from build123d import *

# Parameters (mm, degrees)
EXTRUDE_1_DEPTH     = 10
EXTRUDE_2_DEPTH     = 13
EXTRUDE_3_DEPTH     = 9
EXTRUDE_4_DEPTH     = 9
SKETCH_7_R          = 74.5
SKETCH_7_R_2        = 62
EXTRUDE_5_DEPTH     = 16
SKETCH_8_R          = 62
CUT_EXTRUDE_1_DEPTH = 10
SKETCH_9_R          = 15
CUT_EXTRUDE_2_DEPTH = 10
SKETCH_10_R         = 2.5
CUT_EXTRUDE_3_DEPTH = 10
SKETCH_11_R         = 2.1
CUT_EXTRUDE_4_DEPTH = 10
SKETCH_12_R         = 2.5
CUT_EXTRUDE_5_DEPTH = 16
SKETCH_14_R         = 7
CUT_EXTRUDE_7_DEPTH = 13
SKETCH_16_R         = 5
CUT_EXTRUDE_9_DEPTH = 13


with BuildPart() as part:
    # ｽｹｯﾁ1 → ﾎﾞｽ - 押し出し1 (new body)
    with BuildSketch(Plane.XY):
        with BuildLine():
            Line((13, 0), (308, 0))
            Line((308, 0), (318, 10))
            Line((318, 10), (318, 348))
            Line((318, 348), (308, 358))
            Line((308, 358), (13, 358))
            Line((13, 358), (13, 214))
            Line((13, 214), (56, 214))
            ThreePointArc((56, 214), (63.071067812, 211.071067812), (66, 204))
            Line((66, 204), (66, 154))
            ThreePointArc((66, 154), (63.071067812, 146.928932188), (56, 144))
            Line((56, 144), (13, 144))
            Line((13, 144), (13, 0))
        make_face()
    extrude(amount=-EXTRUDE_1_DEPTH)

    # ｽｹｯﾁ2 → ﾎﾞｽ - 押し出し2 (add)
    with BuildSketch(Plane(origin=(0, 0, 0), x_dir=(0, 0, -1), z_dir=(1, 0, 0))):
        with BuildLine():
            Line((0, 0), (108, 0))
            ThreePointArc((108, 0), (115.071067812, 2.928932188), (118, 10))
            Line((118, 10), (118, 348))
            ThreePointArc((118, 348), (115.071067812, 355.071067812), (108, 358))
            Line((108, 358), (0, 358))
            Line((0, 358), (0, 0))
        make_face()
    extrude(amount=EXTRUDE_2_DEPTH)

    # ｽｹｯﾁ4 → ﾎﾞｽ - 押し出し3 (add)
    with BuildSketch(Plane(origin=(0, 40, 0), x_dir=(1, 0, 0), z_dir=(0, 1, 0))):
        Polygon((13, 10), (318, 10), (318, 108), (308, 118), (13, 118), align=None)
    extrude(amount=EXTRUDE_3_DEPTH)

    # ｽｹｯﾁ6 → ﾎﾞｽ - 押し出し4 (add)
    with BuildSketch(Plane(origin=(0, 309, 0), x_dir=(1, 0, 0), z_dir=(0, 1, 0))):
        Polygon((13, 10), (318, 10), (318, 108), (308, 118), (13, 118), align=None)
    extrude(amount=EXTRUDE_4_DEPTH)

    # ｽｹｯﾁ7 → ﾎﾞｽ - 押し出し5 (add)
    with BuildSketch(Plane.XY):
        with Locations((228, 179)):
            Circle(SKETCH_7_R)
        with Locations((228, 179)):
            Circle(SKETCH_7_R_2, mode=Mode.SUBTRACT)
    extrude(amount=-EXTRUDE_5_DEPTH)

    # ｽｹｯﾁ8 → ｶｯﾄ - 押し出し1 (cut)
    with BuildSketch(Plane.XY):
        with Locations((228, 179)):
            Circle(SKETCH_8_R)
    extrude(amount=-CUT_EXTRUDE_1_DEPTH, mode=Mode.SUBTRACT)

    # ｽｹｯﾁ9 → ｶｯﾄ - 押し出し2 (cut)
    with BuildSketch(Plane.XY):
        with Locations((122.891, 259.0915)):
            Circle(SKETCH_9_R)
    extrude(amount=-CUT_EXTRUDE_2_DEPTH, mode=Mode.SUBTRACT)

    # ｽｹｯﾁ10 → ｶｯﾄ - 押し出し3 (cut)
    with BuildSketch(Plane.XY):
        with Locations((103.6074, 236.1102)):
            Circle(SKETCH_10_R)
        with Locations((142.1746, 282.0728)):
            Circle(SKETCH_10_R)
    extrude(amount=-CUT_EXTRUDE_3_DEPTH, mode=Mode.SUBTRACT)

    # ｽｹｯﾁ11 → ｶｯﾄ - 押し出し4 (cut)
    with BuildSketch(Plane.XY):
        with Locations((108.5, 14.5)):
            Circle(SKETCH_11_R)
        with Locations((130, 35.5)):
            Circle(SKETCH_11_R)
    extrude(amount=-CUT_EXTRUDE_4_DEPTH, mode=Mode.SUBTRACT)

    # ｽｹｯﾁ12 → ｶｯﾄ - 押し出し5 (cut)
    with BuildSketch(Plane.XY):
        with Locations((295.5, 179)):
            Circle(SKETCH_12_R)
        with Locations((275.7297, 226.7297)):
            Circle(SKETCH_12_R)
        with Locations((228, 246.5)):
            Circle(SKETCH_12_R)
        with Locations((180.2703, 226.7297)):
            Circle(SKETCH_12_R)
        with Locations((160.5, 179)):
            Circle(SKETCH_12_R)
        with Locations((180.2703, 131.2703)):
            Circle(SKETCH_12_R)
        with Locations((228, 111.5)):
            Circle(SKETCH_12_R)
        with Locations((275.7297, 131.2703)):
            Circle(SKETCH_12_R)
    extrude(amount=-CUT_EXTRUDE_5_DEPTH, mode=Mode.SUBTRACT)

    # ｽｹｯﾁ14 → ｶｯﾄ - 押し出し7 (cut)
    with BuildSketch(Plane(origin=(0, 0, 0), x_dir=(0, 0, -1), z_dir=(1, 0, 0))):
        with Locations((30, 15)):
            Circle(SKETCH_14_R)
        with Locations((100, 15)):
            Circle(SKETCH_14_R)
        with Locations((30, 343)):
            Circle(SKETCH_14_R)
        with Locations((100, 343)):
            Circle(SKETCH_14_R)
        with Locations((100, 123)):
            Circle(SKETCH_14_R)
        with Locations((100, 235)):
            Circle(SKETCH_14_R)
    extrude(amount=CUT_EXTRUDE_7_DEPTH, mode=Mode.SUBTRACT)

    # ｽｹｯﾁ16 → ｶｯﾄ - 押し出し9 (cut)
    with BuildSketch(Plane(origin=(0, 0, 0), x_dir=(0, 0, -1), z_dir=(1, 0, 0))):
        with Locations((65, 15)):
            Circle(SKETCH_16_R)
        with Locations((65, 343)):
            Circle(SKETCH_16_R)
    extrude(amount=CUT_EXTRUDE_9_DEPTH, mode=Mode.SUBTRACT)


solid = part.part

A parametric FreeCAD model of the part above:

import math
import FreeCAD as App
import Part
import Sketcher

V = App.Vector
Q = App.Units.Quantity

doc = App.newDocument("Part")
params = doc.addObject("Spreadsheet::Sheet", "Params")
for row, (alias, value) in enumerate([
    ("sketch1_radius", "10 mm"),
    ("sketch1_width", "295 mm"),
    ("sketch1_width2", "43 mm"),
    ("sketch1_height", "338 mm"),
    ("sketch1_height2", "144 mm"),
    ("pad1_length", "10 mm"),
    ("sketch2_radius", "10 mm"),
    ("sketch2_width", "338 mm"),
    ("sketch2_height", "108 mm"),
    ("pad2_length", "13 mm"),
    ("sketch3_width", "305 mm"),
    ("sketch3_width2", "295 mm"),
    ("sketch3_height", "98 mm"),
    ("sketch3_height2", "108 mm"),
    ("pad3_length", "9 mm"),
    ("sketch4_width", "305 mm"),
    ("sketch4_width2", "295 mm"),
    ("sketch4_height", "98 mm"),
    ("sketch4_height2", "108 mm"),
    ("pad4_length", "9 mm"),
    ("sketch5_diameter", "149 mm"),
    ("sketch5_diameter2", "124 mm"),
    ("pad5_length", "16 mm"),
    ("sketch6_diameter", "124 mm"),
    ("pocket1_length", "10 mm"),
    ("sketch7_diameter", "30 mm"),
    ("pocket2_length", "10 mm"),
    ("sketch8_diameter", "5 mm"),
    ("pocket3_length", "10 mm"),
    ("sketch9_diameter", "4.2 mm"),
    ("pocket4_length", "10 mm"),
    ("sketch10_diameter", "5 mm"),
    ("pocket5_length", "16 mm"),
    ("sketch11_diameter", "14 mm"),
    ("pocket6_length", "13 mm"),
    ("sketch12_diameter", "10 mm"),
    ("pocket7_length", "13 mm"),
], start=1):
    params.set(f"A{row}", alias)
    params.set(f"B{row}", "=" + value)
    params.setAlias(f"B{row}", alias)

body = doc.addObject("PartDesign::Body", "Body")

# Sketch on XY plane
sketch1 = doc.addObject("Sketcher::SketchObject", "Sketch")
body.addObject(sketch1)
sketch1.AttachmentSupport = (doc.XY_Plane, [""])
sketch1.MapMode = "FlatFace"
sketch1.addGeometry([
    Part.LineSegment(V(13, 0, 0), V(308, 0, 0)),  # 0
    Part.LineSegment(V(308, 0, 0), V(318, 10, 0)),  # 1
    Part.LineSegment(V(318, 10, 0), V(318, 348, 0)),  # 2
    Part.LineSegment(V(318, 348, 0), V(308, 358, 0)),  # 3
    Part.LineSegment(V(308, 358, 0), V(13, 358, 0)),  # 4
    Part.LineSegment(V(13, 358, 0), V(13, 214, 0)),  # 5
    Part.LineSegment(V(13, 214, 0), V(56, 214, 0)),  # 6
    Part.ArcOfCircle(Part.Circle(V(56, 204, 0), V(0, 0, 1), 10), math.radians(0), math.radians(90)),  # 7
    Part.LineSegment(V(66, 204, 0), V(66, 154, 0)),  # 8
    Part.ArcOfCircle(Part.Circle(V(56, 154, 0), V(0, 0, 1), 10), math.radians(-90), math.radians(0)),  # 9
    Part.LineSegment(V(56, 144, 0), V(13, 144, 0)),  # 10
    Part.LineSegment(V(13, 144, 0), V(13, 0, 0)),  # 11
], False)
sketch1.addConstraint([
    Sketcher.Constraint("Coincident", 0, 2, 1, 1),
    Sketcher.Constraint("Coincident", 1, 2, 2, 1),
    Sketcher.Constraint("Coincident", 2, 2, 3, 1),
    Sketcher.Constraint("Coincident", 3, 2, 4, 1),
    Sketcher.Constraint("Coincident", 4, 2, 5, 1),
    Sketcher.Constraint("Coincident", 5, 2, 6, 1),
    Sketcher.Constraint("Tangent", 6, 2, 7, 2),
    Sketcher.Constraint("Tangent", 7, 1, 8, 1),
    Sketcher.Constraint("Tangent", 8, 2, 9, 2),
    Sketcher.Constraint("Tangent", 9, 1, 10, 1),
    Sketcher.Constraint("Coincident", 10, 2, 11, 1),
    Sketcher.Constraint("Coincident", 11, 2, 0, 1),
    Sketcher.Constraint("Horizontal", 0),
    Sketcher.Constraint("Vertical", 2),
    Sketcher.Constraint("Horizontal", 4),
    Sketcher.Constraint("Vertical", 5),
    Sketcher.Constraint("Horizontal", 6),
    Sketcher.Constraint("Vertical", 8),
    Sketcher.Constraint("Horizontal", 10),
    Sketcher.Constraint("Vertical", 11),
    Sketcher.Constraint("Equal", 7, 9),
    Sketcher.Constraint("PointOnObject", 0, 2, -1),
    Sketcher.Constraint("Perpendicular", 1, 3),
    Sketcher.Constraint("Vertical", 0, 2, 3, 2),
    Sketcher.Constraint("Vertical", 5, 2, 10, 2),
    Sketcher.Constraint("Equal", 5, 11),
    Sketcher.Constraint("Equal", 1, 3),
    Sketcher.Constraint("Radius", 7, Q("10 mm")),
    Sketcher.Constraint("DistanceX", 0, 1, 0, 2, Q("295 mm")),
    Sketcher.Constraint("DistanceX", 6, 1, 6, 2, Q("43 mm")),
    Sketcher.Constraint("DistanceY", 2, 1, 2, 2, Q("338 mm")),
    Sketcher.Constraint("DistanceY", 5, 2, 5, 1, Q("144 mm")),
    Sketcher.Constraint("DistanceY", 8, 2, 8, 1, Q("50 mm")),
    Sketcher.Constraint("DistanceX", -1, 1, 7, 3, Q("56 mm")),
])
sketch1.setExpression("Constraints[27]", "Params.sketch1_radius")
sketch1.setExpression("Constraints[28]", "Params.sketch1_width")
sketch1.setExpression("Constraints[29]", "Params.sketch1_width2")
sketch1.setExpression("Constraints[30]", "Params.sketch1_height")
sketch1.setExpression("Constraints[31]", "Params.sketch1_height2")
pad1 = doc.addObject("PartDesign::Pad", "Pad")
body.addObject(pad1)
pad1.Profile = sketch1
pad1.setExpression("Length", "Params.pad1_length")
pad1.Reversed = True

# Sketch on YZ plane
sketch2 = doc.addObject("Sketcher::SketchObject", "Sketch001")
body.addObject(sketch2)
sketch2.AttachmentSupport = (doc.YZ_Plane, [""])
sketch2.MapMode = "FlatFace"
sketch2.addGeometry([
    Part.LineSegment(V(0, 0, 0), V(0, -108, 0)),  # 0
    Part.ArcOfCircle(Part.Circle(V(10, -108, 0), V(0, 0, 1), 10), math.radians(180), math.radians(270)),  # 1
    Part.LineSegment(V(10, -118, 0), V(348, -118, 0)),  # 2
    Part.ArcOfCircle(Part.Circle(V(348, -108, 0), V(0, 0, 1), 10), math.radians(-90), math.radians(0)),  # 3
    Part.LineSegment(V(358, -108, 0), V(358, 0, 0)),  # 4
    Part.LineSegment(V(358, 0, 0), V(0, 0, 0)),  # 5
], False)
sketch2.addConstraint([
    Sketcher.Constraint("Tangent", 0, 2, 1, 1),
    Sketcher.Constraint("Tangent", 1, 2, 2, 1),
    Sketcher.Constraint("Tangent", 2, 2, 3, 1),
    Sketcher.Constraint("Tangent", 3, 2, 4, 1),
    Sketcher.Constraint("Coincident", 4, 2, 5, 1),
    Sketcher.Constraint("Coincident", 5, 2, 0, 1),
    Sketcher.Constraint("Vertical", 0),
    Sketcher.Constraint("Horizontal", 2),
    Sketcher.Constraint("Vertical", 4),
    Sketcher.Constraint("Horizontal", 5),
    Sketcher.Constraint("Coincident", 5, 2, -1, 1),
    Sketcher.Constraint("Equal", 1, 3),
    Sketcher.Constraint("Radius", 1, Q("10 mm")),
    Sketcher.Constraint("DistanceX", 2, 1, 2, 2, Q("338 mm")),
    Sketcher.Constraint("DistanceY", 0, 2, 0, 1, Q("108 mm")),
])
sketch2.setExpression("Constraints[12]", "Params.sketch2_radius")
sketch2.setExpression("Constraints[13]", "Params.sketch2_width")
sketch2.setExpression("Constraints[14]", "Params.sketch2_height")
pad2 = doc.addObject("PartDesign::Pad", "Pad001")
body.addObject(pad2)
pad2.Profile = sketch2
pad2.setExpression("Length", "Params.pad2_length")

# Sketch on XZ plane
sketch3 = doc.addObject("Sketcher::SketchObject", "Sketch002")
body.addObject(sketch3)
sketch3.AttachmentSupport = (doc.XZ_Plane, [""])
sketch3.MapMode = "FlatFace"
sketch3.AttachmentOffset = App.Placement(V(0, 0, -40), App.Rotation())
sketch3.addGeometry([
    Part.LineSegment(V(13, -10, 0), V(318, -10, 0)),  # 0
    Part.LineSegment(V(318, -10, 0), V(318, -108, 0)),  # 1
    Part.LineSegment(V(318, -108, 0), V(308, -118, 0)),  # 2
    Part.LineSegment(V(308, -118, 0), V(13, -118, 0)),  # 3
    Part.LineSegment(V(13, -118, 0), V(13, -10, 0)),  # 4
], False)
sketch3.addConstraint([
    Sketcher.Constraint("Coincident", 0, 2, 1, 1),
    Sketcher.Constraint("Coincident", 1, 2, 2, 1),
    Sketcher.Constraint("Coincident", 2, 2, 3, 1),
    Sketcher.Constraint("Coincident", 3, 2, 4, 1),
    Sketcher.Constraint("Coincident", 4, 2, 0, 1),
    Sketcher.Constraint("Horizontal", 0),
    Sketcher.Constraint("Vertical", 1),
    Sketcher.Constraint("Horizontal", 3),
    Sketcher.Constraint("Vertical", 4),
    Sketcher.Constraint("DistanceX", 0, 1, 0, 2, Q("305 mm")),
    Sketcher.Constraint("DistanceX", 3, 2, 3, 1, Q("295 mm")),
    Sketcher.Constraint("DistanceY", 1, 2, 1, 1, Q("98 mm")),
    Sketcher.Constraint("DistanceY", 4, 1, 4, 2, Q("108 mm")),
    Sketcher.Constraint("DistanceX", -1, 1, 0, 2, Q("318 mm")),
    Sketcher.Constraint("DistanceY", 0, 2, -1, 1, Q("10 mm")),
])
sketch3.setExpression("Constraints[9]", "Params.sketch3_width")
sketch3.setExpression("Constraints[10]", "Params.sketch3_width2")
sketch3.setExpression("Constraints[11]", "Params.sketch3_height")
sketch3.setExpression("Constraints[12]", "Params.sketch3_height2")
pad3 = doc.addObject("PartDesign::Pad", "Pad002")
body.addObject(pad3)
pad3.Profile = sketch3
pad3.setExpression("Length", "Params.pad3_length")
pad3.Reversed = True

# Sketch on XZ plane
sketch4 = doc.addObject("Sketcher::SketchObject", "Sketch003")
body.addObject(sketch4)
sketch4.AttachmentSupport = (doc.XZ_Plane, [""])
sketch4.MapMode = "FlatFace"
sketch4.AttachmentOffset = App.Placement(V(0, 0, -309), App.Rotation())
sketch4.addGeometry([
    Part.LineSegment(V(13, -10, 0), V(318, -10, 0)),  # 0
    Part.LineSegment(V(318, -10, 0), V(318, -108, 0)),  # 1
    Part.LineSegment(V(318, -108, 0), V(308, -118, 0)),  # 2
    Part.LineSegment(V(308, -118, 0), V(13, -118, 0)),  # 3
    Part.LineSegment(V(13, -118, 0), V(13, -10, 0)),  # 4
], False)
sketch4.addConstraint([
    Sketcher.Constraint("Coincident", 0, 2, 1, 1),
    Sketcher.Constraint("Coincident", 1, 2, 2, 1),
    Sketcher.Constraint("Coincident", 2, 2, 3, 1),
    Sketcher.Constraint("Coincident", 3, 2, 4, 1),
    Sketcher.Constraint("Coincident", 4, 2, 0, 1),
    Sketcher.Constraint("Horizontal", 0),
    Sketcher.Constraint("Vertical", 1),
    Sketcher.Constraint("Horizontal", 3),
    Sketcher.Constraint("Vertical", 4),
    Sketcher.Constraint("DistanceX", 0, 1, 0, 2, Q("305 mm")),
    Sketcher.Constraint("DistanceX", 3, 2, 3, 1, Q("295 mm")),
    Sketcher.Constraint("DistanceY", 1, 2, 1, 1, Q("98 mm")),
    Sketcher.Constraint("DistanceY", 4, 1, 4, 2, Q("108 mm")),
    Sketcher.Constraint("DistanceX", -1, 1, 0, 2, Q("318 mm")),
    Sketcher.Constraint("DistanceY", 0, 2, -1, 1, Q("10 mm")),
])
sketch4.setExpression("Constraints[9]", "Params.sketch4_width")
sketch4.setExpression("Constraints[10]", "Params.sketch4_width2")
sketch4.setExpression("Constraints[11]", "Params.sketch4_height")
sketch4.setExpression("Constraints[12]", "Params.sketch4_height2")
pad4 = doc.addObject("PartDesign::Pad", "Pad003")
body.addObject(pad4)
pad4.Profile = sketch4
pad4.setExpression("Length", "Params.pad4_length")
pad4.Reversed = True

# Sketch on XY plane
sketch5 = doc.addObject("Sketcher::SketchObject", "Sketch004")
body.addObject(sketch5)
sketch5.AttachmentSupport = (doc.XY_Plane, [""])
sketch5.MapMode = "FlatFace"
sketch5.addGeometry([
    Part.Circle(V(228, 179, 0), V(0, 0, 1), 74),
    Part.Circle(V(228, 179, 0), V(0, 0, 1), 62),
], False)
sketch5.addConstraint([
    Sketcher.Constraint("Coincident", 1, 3, 0, 3),
    Sketcher.Constraint("Diameter", 0, Q("149 mm")),
    Sketcher.Constraint("Diameter", 1, Q("124 mm")),
    Sketcher.Constraint("DistanceX", -1, 1, 0, 3, Q("228 mm")),
    Sketcher.Constraint("DistanceY", -1, 1, 0, 3, Q("179 mm")),
])
sketch5.setExpression("Constraints[1]", "Params.sketch5_diameter")
sketch5.setExpression("Constraints[2]", "Params.sketch5_diameter2")
pad5 = doc.addObject("PartDesign::Pad", "Pad004")
body.addObject(pad5)
pad5.Profile = sketch5
pad5.setExpression("Length", "Params.pad5_length")
pad5.Reversed = True

# Sketch on XY plane
sketch6 = doc.addObject("Sketcher::SketchObject", "Sketch005")
body.addObject(sketch6)
sketch6.AttachmentSupport = (doc.XY_Plane, [""])
sketch6.MapMode = "FlatFace"
sketch6.addGeometry(Part.Circle(V(228, 179, 0), V(0, 0, 1), 62), False)
sketch6.addConstraint([
    Sketcher.Constraint("Diameter", 0, Q("124 mm")),
    Sketcher.Constraint("DistanceX", -1, 1, 0, 3, Q("228 mm")),
    Sketcher.Constraint("DistanceY", -1, 1, 0, 3, Q("179 mm")),
])
sketch6.setExpression("Constraints[0]", "Params.sketch6_diameter")
pocket1 = doc.addObject("PartDesign::Pocket", "Pocket")
body.addObject(pocket1)
pocket1.Profile = sketch6
pocket1.setExpression("Length", "Params.pocket1_length")

# Sketch on XY plane
sketch7 = doc.addObject("Sketcher::SketchObject", "Sketch006")
body.addObject(sketch7)
sketch7.AttachmentSupport = (doc.XY_Plane, [""])
sketch7.MapMode = "FlatFace"
sketch7.addGeometry(Part.Circle(V(123, 259, 0), V(0, 0, 1), 15), False)
sketch7.addConstraint([
    Sketcher.Constraint("Diameter", 0, Q("30 mm")),
    Sketcher.Constraint("DistanceX", -1, 1, 0, 3, Q("122.891 mm")),
    Sketcher.Constraint("DistanceY", -1, 1, 0, 3, Q("259.0915 mm")),
])
sketch7.setExpression("Constraints[0]", "Params.sketch7_diameter")
pocket2 = doc.addObject("PartDesign::Pocket", "Pocket001")
body.addObject(pocket2)
pocket2.Profile = sketch7
pocket2.setExpression("Length", "Params.pocket2_length")

# Sketch on XY plane
sketch8 = doc.addObject("Sketcher::SketchObject", "Sketch007")
body.addObject(sketch8)
sketch8.AttachmentSupport = (doc.XY_Plane, [""])
sketch8.MapMode = "FlatFace"
sketch8.addGeometry([
    Part.Circle(V(103.6, 236.1, 0), V(0, 0, 1), 2.5),
    Part.Circle(V(142.2, 282.1, 0), V(0, 0, 1), 2.5),
], False)
sketch8.addConstraint([
    Sketcher.Constraint("Equal", 0, 1),
    Sketcher.Constraint("Diameter", 0, Q("5 mm")),
    Sketcher.Constraint("DistanceX", -1, 1, 0, 3, Q("103.6074 mm")),
    Sketcher.Constraint("DistanceY", -1, 1, 0, 3, Q("236.1102 mm")),
    Sketcher.Constraint("DistanceX", -1, 1, 1, 3, Q("142.1746 mm")),
    Sketcher.Constraint("DistanceY", -1, 1, 1, 3, Q("282.0728 mm")),
])
sketch8.setExpression("Constraints[1]", "Params.sketch8_diameter")
pocket3 = doc.addObject("PartDesign::Pocket", "Pocket002")
body.addObject(pocket3)
pocket3.Profile = sketch8
pocket3.setExpression("Length", "Params.pocket3_length")

# Sketch on XY plane
sketch9 = doc.addObject("Sketcher::SketchObject", "Sketch008")
body.addObject(sketch9)
sketch9.AttachmentSupport = (doc.XY_Plane, [""])
sketch9.MapMode = "FlatFace"
sketch9.addGeometry([
    Part.Circle(V(108.5, 14.5, 0), V(0, 0, 1), 2.1),
    Part.Circle(V(130, 35.5, 0), V(0, 0, 1), 2.1),
], False)
sketch9.addConstraint([
    Sketcher.Constraint("Equal", 0, 1),
    Sketcher.Constraint("Diameter", 0, Q("4.2 mm")),
    Sketcher.Constraint("DistanceX", -1, 1, 1, 3, Q("130 mm")),
    Sketcher.Constraint("DistanceY", 0, 3, 1, 3, Q("21 mm")),
    Sketcher.Constraint("DistanceX", -1, 1, 0, 3, Q("108.5 mm")),
    Sketcher.Constraint("DistanceY", -1, 1, 0, 3, Q("14.5 mm")),
])
sketch9.setExpression("Constraints[1]", "Params.sketch9_diameter")
pocket4 = doc.addObject("PartDesign::Pocket", "Pocket003")
body.addObject(pocket4)
pocket4.Profile = sketch9
pocket4.setExpression("Length", "Params.pocket4_length")

# Sketch on XY plane
sketch10 = doc.addObject("Sketcher::SketchObject", "Sketch009")
body.addObject(sketch10)
sketch10.AttachmentSupport = (doc.XY_Plane, [""])
sketch10.MapMode = "FlatFace"
sketch10.addGeometry([
    Part.Circle(V(295.5, 179, 0), V(0, 0, 1), 2.5),  # 0
    Part.Circle(V(275.7, 226.7, 0), V(0, 0, 1), 2.5),  # 1
    Part.Circle(V(228, 246.5, 0), V(0, 0, 1), 2.5),  # 2
    Part.Circle(V(180.3, 226.7, 0), V(0, 0, 1), 2.5),  # 3
    Part.Circle(V(160.5, 179, 0), V(0, 0, 1), 2.5),  # 4
    Part.Circle(V(180.3, 131.3, 0), V(0, 0, 1), 2.5),  # 5
    Part.Circle(V(228, 111.5, 0), V(0, 0, 1), 2.5),  # 6
    Part.Circle(V(275.7, 131.3, 0), V(0, 0, 1), 2.5),  # 7
], False)
sketch10.addConstraint([
    Sketcher.Constraint("Equal", 0, 1),
    Sketcher.Constraint("Equal", 1, 2),
    Sketcher.Constraint("Equal", 2, 3),
    Sketcher.Constraint("Equal", 3, 4),
    Sketcher.Constraint("Equal", 4, 5),
    Sketcher.Constraint("Equal", 5, 6),
    Sketcher.Constraint("Equal", 6, 7),
    Sketcher.Constraint("Horizontal", 1, 3, 3, 3),
    Sketcher.Constraint("Horizontal", 0, 3, 4, 3),
    Sketcher.Constraint("Horizontal", 5, 3, 7, 3),
    Sketcher.Constraint("Vertical", 3, 3, 5, 3),
    Sketcher.Constraint("Vertical", 2, 3, 6, 3),
    Sketcher.Constraint("Vertical", 1, 3, 7, 3),
    Sketcher.Constraint("Diameter", 0, Q("5 mm")),
    Sketcher.Constraint("DistanceY", -1, 1, 0, 3, Q("179 mm")),
    Sketcher.Constraint("DistanceX", -1, 1, 2, 3, Q("228 mm")),
    Sketcher.Constraint("DistanceX", 4, 3, 0, 3, Q("135 mm")),
    Sketcher.Constraint("DistanceX", -1, 1, 0, 3, Q("295.5 mm")),
    Sketcher.Constraint("DistanceY", -1, 1, 2, 3, Q("246.5 mm")),
    Sketcher.Constraint("DistanceY", -1, 1, 6, 3, Q("111.5 mm")),
    Sketcher.Constraint("DistanceX", -1, 1, 1, 3, Q("275.7297 mm")),
    Sketcher.Constraint("DistanceY", -1, 1, 1, 3, Q("226.7297 mm")),
    Sketcher.Constraint("DistanceX", -1, 1, 3, 3, Q("180.2703 mm")),
    Sketcher.Constraint("DistanceY", -1, 1, 5, 3, Q("131.2703 mm")),
])
sketch10.setExpression("Constraints[13]", "Params.sketch10_diameter")
pocket5 = doc.addObject("PartDesign::Pocket", "Pocket004")
body.addObject(pocket5)
pocket5.Profile = sketch10
pocket5.setExpression("Length", "Params.pocket5_length")

# Sketch on YZ plane
sketch11 = doc.addObject("Sketcher::SketchObject", "Sketch010")
body.addObject(sketch11)
sketch11.AttachmentSupport = (doc.YZ_Plane, [""])
sketch11.MapMode = "FlatFace"
sketch11.addGeometry([
    Part.Circle(V(15, -30, 0), V(0, 0, 1), 7),  # 0
    Part.Circle(V(15, -100, 0), V(0, 0, 1), 7),  # 1
    Part.Circle(V(343, -30, 0), V(0, 0, 1), 7),  # 2
    Part.Circle(V(343, -100, 0), V(0, 0, 1), 7),  # 3
    Part.Circle(V(123, -100, 0), V(0, 0, 1), 7),  # 4
    Part.Circle(V(235, -100, 0), V(0, 0, 1), 7),  # 5
], False)
sketch11.addConstraint([
    Sketcher.Constraint("Equal", 0, 1),
    Sketcher.Constraint("Equal", 1, 2),
    Sketcher.Constraint("Equal", 2, 3),
    Sketcher.Constraint("Equal", 3, 4),
    Sketcher.Constraint("Equal", 4, 5),
    Sketcher.Constraint("Horizontal", 0, 3, 2, 3),
    Sketcher.Constraint("Horizontal", 1, 3, 3, 3),
    Sketcher.Constraint("Horizontal", 3, 3, 4, 3),
    Sketcher.Constraint("Horizontal", 4, 3, 5, 3),
    Sketcher.Constraint("Vertical", 0, 3, 1, 3),
    Sketcher.Constraint("Vertical", 2, 3, 3, 3),
    Sketcher.Constraint("Diameter", 0, Q("14 mm")),
    Sketcher.Constraint("DistanceX", -1, 1, 0, 3, Q("15 mm")),
    Sketcher.Constraint("DistanceY", 0, 3, -1, 1, Q("30 mm")),
    Sketcher.Constraint("DistanceY", 1, 3, -1, 1, Q("100 mm")),
    Sketcher.Constraint("DistanceX", -1, 1, 2, 3, Q("343 mm")),
    Sketcher.Constraint("DistanceX", -1, 1, 4, 3, Q("123 mm")),
    Sketcher.Constraint("DistanceX", -1, 1, 5, 3, Q("235 mm")),
])
sketch11.setExpression("Constraints[11]", "Params.sketch11_diameter")
pocket6 = doc.addObject("PartDesign::Pocket", "Pocket005")
body.addObject(pocket6)
pocket6.Profile = sketch11
pocket6.setExpression("Length", "Params.pocket6_length")
pocket6.Reversed = True

# Sketch on YZ plane
sketch12 = doc.addObject("Sketcher::SketchObject", "Sketch011")
body.addObject(sketch12)
sketch12.AttachmentSupport = (doc.YZ_Plane, [""])
sketch12.MapMode = "FlatFace"
sketch12.addGeometry([
    Part.Circle(V(15, -65, 0), V(0, 0, 1), 5),
    Part.Circle(V(343, -65, 0), V(0, 0, 1), 5),
], False)
sketch12.addConstraint([
    Sketcher.Constraint("Equal", 0, 1),
    Sketcher.Constraint("Horizontal", 0, 3, 1, 3),
    Sketcher.Constraint("Diameter", 0, Q("10 mm")),
    Sketcher.Constraint("DistanceX", -1, 1, 0, 3, Q("15 mm")),
    Sketcher.Constraint("DistanceY", 0, 3, -1, 1, Q("65 mm")),
    Sketcher.Constraint("DistanceX", -1, 1, 1, 3, Q("343 mm")),
])
sketch12.setExpression("Constraints[2]", "Params.sketch12_diameter")
pocket7 = doc.addObject("PartDesign::Pocket", "Pocket006")
body.addObject(pocket7)
pocket7.Profile = sketch12
pocket7.setExpression("Length", "Params.pocket7_length")
pocket7.Reversed = True

doc.recompute()
